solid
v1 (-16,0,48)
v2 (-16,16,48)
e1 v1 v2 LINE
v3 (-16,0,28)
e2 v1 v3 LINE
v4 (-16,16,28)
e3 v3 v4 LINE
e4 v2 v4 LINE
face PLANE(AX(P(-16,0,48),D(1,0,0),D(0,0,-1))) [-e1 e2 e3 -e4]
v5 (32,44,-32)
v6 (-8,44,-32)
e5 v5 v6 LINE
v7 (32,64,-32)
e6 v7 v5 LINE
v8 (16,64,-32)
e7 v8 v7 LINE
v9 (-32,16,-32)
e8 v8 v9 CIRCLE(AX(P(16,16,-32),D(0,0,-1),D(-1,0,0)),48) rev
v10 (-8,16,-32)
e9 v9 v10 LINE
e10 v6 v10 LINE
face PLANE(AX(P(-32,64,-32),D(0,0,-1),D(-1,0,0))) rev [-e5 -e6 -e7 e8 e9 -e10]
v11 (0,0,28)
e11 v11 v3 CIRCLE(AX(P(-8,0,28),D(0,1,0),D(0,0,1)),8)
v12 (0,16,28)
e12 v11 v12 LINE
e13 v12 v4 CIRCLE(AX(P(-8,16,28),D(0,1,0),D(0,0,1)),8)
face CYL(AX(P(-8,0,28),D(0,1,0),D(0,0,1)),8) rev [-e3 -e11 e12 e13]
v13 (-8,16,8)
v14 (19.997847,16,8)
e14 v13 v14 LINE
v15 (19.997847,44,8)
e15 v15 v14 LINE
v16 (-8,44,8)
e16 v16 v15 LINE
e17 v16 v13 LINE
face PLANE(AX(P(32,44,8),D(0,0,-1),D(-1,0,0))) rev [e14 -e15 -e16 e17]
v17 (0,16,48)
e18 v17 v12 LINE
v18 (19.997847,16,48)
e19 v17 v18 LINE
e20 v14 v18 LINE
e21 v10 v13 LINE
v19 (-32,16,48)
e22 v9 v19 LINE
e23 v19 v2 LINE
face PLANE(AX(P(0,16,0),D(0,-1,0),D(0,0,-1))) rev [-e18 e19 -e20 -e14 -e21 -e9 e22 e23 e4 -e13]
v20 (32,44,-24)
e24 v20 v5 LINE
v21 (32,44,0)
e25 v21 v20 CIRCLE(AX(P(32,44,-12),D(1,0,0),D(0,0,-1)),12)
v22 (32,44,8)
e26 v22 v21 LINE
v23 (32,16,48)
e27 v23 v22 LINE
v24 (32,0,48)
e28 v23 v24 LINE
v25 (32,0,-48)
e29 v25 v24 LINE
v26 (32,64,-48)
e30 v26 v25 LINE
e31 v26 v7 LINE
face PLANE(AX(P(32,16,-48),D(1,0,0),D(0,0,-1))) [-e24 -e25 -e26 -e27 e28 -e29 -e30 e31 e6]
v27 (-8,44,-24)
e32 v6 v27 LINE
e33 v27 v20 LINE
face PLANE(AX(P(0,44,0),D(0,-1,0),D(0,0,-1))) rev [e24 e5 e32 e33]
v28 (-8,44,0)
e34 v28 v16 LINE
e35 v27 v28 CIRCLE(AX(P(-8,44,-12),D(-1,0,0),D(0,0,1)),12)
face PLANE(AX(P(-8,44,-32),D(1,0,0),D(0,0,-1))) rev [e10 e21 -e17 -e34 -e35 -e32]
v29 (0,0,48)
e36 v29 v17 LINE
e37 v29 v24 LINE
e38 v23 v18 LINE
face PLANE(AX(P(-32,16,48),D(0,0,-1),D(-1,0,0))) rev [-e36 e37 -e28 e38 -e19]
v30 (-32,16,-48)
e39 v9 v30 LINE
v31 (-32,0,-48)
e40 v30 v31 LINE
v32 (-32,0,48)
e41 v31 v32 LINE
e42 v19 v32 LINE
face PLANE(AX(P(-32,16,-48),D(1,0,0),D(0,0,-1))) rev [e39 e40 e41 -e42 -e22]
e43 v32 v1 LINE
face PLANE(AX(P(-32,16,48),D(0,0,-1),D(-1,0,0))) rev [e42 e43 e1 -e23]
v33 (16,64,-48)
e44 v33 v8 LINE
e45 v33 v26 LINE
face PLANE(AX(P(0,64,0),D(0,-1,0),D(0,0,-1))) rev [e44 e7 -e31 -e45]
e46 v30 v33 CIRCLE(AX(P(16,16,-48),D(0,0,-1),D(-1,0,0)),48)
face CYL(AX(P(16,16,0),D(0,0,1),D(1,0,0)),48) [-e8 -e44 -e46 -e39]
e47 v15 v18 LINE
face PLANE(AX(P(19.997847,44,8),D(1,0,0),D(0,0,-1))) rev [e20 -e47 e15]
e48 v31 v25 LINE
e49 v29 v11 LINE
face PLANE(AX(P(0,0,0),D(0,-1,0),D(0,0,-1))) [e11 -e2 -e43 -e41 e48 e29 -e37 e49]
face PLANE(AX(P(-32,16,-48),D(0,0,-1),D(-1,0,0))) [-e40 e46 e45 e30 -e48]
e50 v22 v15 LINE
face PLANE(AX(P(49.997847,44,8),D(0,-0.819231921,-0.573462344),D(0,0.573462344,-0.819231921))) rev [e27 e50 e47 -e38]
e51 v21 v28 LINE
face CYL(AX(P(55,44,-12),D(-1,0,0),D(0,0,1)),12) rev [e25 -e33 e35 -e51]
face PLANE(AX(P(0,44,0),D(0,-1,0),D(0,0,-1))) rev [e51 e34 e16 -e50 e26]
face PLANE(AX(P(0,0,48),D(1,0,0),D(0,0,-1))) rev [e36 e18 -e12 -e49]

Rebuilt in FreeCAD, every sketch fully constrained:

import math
import FreeCAD as App
import Part
import Sketcher
Q = App.Units.Quantity


def edges_at(feature, points):
    """Names of the edges that pass closest to the given points."""
    edges = feature.Shape.Edges
    near = lambda p: min(range(len(edges)), key=lambda i: edges[i].distToShape(Part.Vertex(*p))[0])
    return sorted({f"Edge{near(p) + 1}" for p in points})

doc = App.newDocument("Part")
body = doc.addObject("PartDesign::Body", "Body")

# Sketch on XZ plane
sketch1 = body.newObject("Sketcher::SketchObject", "Sketch")
sketch1.AttachmentSupport = (doc.getObject("XZ_Plane"), [""])
sketch1.MapMode = "FlatFace"
sketch1.addGeometry([
    Part.LineSegment(App.Vector(-32, -48, 0), App.Vector(-32, 48, 0)),
    Part.LineSegment(App.Vector(-32, 48, 0), App.Vector(32, 48, 0)),
    Part.LineSegment(App.Vector(32, 48, 0), App.Vector(32, -48, 0)),
    Part.LineSegment(App.Vector(32, -48, 0), App.Vector(-32, -48, 0)),
], False)
sketch1.addConstraint([
    Sketcher.Constraint("Coincident", 0, 2, 1, 1),
    Sketcher.Constraint("Coincident", 1, 2, 2, 1),
    Sketcher.Constraint("Coincident", 2, 2, 3, 1),
    Sketcher.Constraint("Coincident", 3, 2, 0, 1),
    Sketcher.Constraint("Vertical", 0),
    Sketcher.Constraint("Horizontal", 1),
    Sketcher.Constraint("Vertical", 2),
    Sketcher.Constraint("Horizontal", 3),
    Sketcher.Constraint("Symmetric", 0, 2, 2, 2, -1, 1),
    Sketcher.Constraint("DistanceX", 1, 1, 1, 2, Q("64 mm")),
    Sketcher.Constraint("DistanceY", 0, 1, 0, 2, Q("96 mm")),
])
pad1 = body.newObject("PartDesign::Pad", "Pad")
pad1.Profile = sketch1
pad1.Length = 16
pad1.Reversed = True

# Sketch on XZ plane
sketch2 = body.newObject("Sketcher::SketchObject", "Sketch001")
sketch2.AttachmentSupport = (doc.getObject("XZ_Plane"), [""])
sketch2.MapMode = "FlatFace"
sketch2.AttachmentOffset = App.Placement(App.Vector(0, 0, -16), App.Rotation())
sketch2.addGeometry([
    Part.LineSegment(App.Vector(-32, -48, 0), App.Vector(-32, -32, 0)),
    Part.LineSegment(App.Vector(-32, -32, 0), App.Vector(32, -32, 0)),
    Part.LineSegment(App.Vector(32, -32, 0), App.Vector(32, -48, 0)),
    Part.LineSegment(App.Vector(32, -48, 0), App.Vector(-32, -48, 0)),
], False)
sketch2.addConstraint([
    Sketcher.Constraint("Coincident", 0, 2, 1, 1),
    Sketcher.Constraint("Coincident", 1, 2, 2, 1),
    Sketcher.Constraint("Coincident", 2, 2, 3, 1),
    Sketcher.Constraint("Coincident", 3, 2, 0, 1),
    Sketcher.Constraint("Vertical", 0),
    Sketcher.Constraint("Horizontal", 1),
    Sketcher.Constraint("Vertical", 2),
    Sketcher.Constraint("Horizontal", 3),
    Sketcher.Constraint("DistanceX", 1, 1, 1, 2, Q("64 mm")),
    Sketcher.Constraint("DistanceY", 0, 1, 0, 2, Q("16 mm")),
    Sketcher.Constraint("DistanceX", 0, 2, -1, 1, Q("32 mm")),
    Sketcher.Constraint("DistanceY", 0, 2, -1, 1, Q("32 mm")),
])
pad2 = body.newObject("PartDesign::Pad", "Pad001")
pad2.Profile = sketch2
pad2.Length = 48
pad2.Reversed = True
doc.recompute()

fillet = body.newObject("PartDesign::Fillet", "Fillet")
fillet.Base = (pad2, edges_at(pad2, [(-32, 64, -40)]))
fillet.Radius = 48

# Sketch on XZ plane
sketch3 = body.newObject("Sketcher::SketchObject", "Sketch002")
sketch3.AttachmentSupport = (doc.getObject("XZ_Plane"), [""])
sketch3.MapMode = "FlatFace"
sketch3.AttachmentOffset = App.Placement(App.Vector(0, 0, -16), App.Rotation())
sketch3.addGeometry([
    Part.LineSegment(App.Vector(-8, -32, 0), App.Vector(-8, 8, 0)),
    Part.LineSegment(App.Vector(-8, 8, 0), App.Vector(32, 8, 0)),
    Part.LineSegment(App.Vector(32, 8, 0), App.Vector(32, -32, 0)),
    Part.LineSegment(App.Vector(32, -32, 0), App.Vector(-8, -32, 0)),
], False)
sketch3.addConstraint([
    Sketcher.Constraint("Coincident", 0, 2, 1, 1),
    Sketcher.Constraint("Coincident", 1, 2, 2, 1),
    Sketcher.Constraint("Coincident", 2, 2, 3, 1),
    Sketcher.Constraint("Coincident", 3, 2, 0, 1),
    Sketcher.Constraint("Vertical", 0),
    Sketcher.Constraint("Horizontal", 1),
    Sketcher.Constraint("Vertical", 2),
    Sketcher.Constraint("Horizontal", 3),
    Sketcher.Constraint("Equal", 3, 0),
    Sketcher.Constraint("DistanceX", 1, 1, 1, 2, Q("40 mm")),
    Sketcher.Constraint("DistanceX", 0, 2, -1, 1, Q("8 mm")),
    Sketcher.Constraint("DistanceY", -1, 1, 0, 2, Q("8 mm")),
])
pad3 = body.newObject("PartDesign::Pad", "Pad002")
pad3.Profile = sketch3
pad3.Length = 28
pad3.Reversed = True

# Sketch on YZ plane
sketch4 = body.newObject("Sketcher::SketchObject", "Sketch003")
sketch4.AttachmentSupport = (doc.getObject("YZ_Plane"), [""])
sketch4.MapMode = "FlatFace"
sketch4.AttachmentOffset = App.Placement(App.Vector(0, 0, -8), App.Rotation())
sketch4.addGeometry(Part.Circle(App.Vector(44, -12, 0), App.Vector(0, 0, 1), 12), False)
sketch4.addConstraint([
    Sketcher.Constraint("Diameter", 0, Q("24 mm")),
    Sketcher.Constraint("DistanceX", -1, 1, 0, 3, Q("44 mm")),
    Sketcher.Constraint("DistanceY", 0, 3, -1, 1, Q("12 mm")),
])
pocket1 = body.newObject("PartDesign::Pocket", "Pocket")
pocket1.Profile = sketch4
pocket1.Length = 63
pocket1.Reversed = True

# Sketch on XZ plane
sketch5 = body.newObject("Sketcher::SketchObject", "Sketch004")
sketch5.AttachmentSupport = (doc.getObject("XZ_Plane"), [""])
sketch5.MapMode = "FlatFace"
sketch5.AttachmentOffset = App.Placement(App.Vector(0, 0, -16), App.Rotation())
sketch5.addGeometry([
    Part.LineSegment(App.Vector(20, 8, 0), App.Vector(20, 48, 0)),
    Part.LineSegment(App.Vector(20, 48, 0), App.Vector(32, 48, 0)),
    Part.LineSegment(App.Vector(32, 48, 0), App.Vector(32, 8, 0)),
    Part.LineSegment(App.Vector(32, 8, 0), App.Vector(20, 8, 0)),
], False)
sketch5.addConstraint([
    Sketcher.Constraint("Coincident", 0, 2, 1, 1),
    Sketcher.Constraint("Coincident", 1, 2, 2, 1),
    Sketcher.Constraint("Coincident", 2, 2, 3, 1),
    Sketcher.Constraint("Coincident", 3, 2, 0, 1),
    Sketcher.Constraint("Vertical", 0),
    Sketcher.Constraint("Horizontal", 1),
    Sketcher.Constraint("Vertical", 2),
    Sketcher.Constraint("Horizontal", 3),
    Sketcher.Constraint("DistanceY", 0, 1, 0, 2, Q("40 mm")),
    Sketcher.Constraint("DistanceY", -1, 1, 0, 2, Q("48 mm")),
    Sketcher.Constraint("DistanceX", -1, 1, 1, 2, Q("32 mm")),
    Sketcher.Constraint("DistanceX", 1, 1, 1, 2, Q("12.002153 mm")),
])
pad4 = body.newObject("PartDesign::Pad", "Pad003")
pad4.Profile = sketch5
pad4.Length = 28
pad4.Reversed = True

# Sketch on YZ plane
sketch6 = body.newObject("Sketcher::SketchObject", "Sketch005")
sketch6.AttachmentSupport = (doc.getObject("YZ_Plane"), [""])
sketch6.MapMode = "FlatFace"
sketch6.AttachmentOffset = App.Placement(App.Vector(0, 0, 19.997847), App.Rotation())
sketch6.addGeometry([
    Part.LineSegment(App.Vector(44, 8, 0), App.Vector(16, 48, 0)),
    Part.LineSegment(App.Vector(16, 48, 0), App.Vector(44, 48, 0)),
    Part.LineSegment(App.Vector(44, 48, 0), App.Vector(44, 8, 0)),
], False)
sketch6.addConstraint([
    Sketcher.Constraint("Coincident", 0, 2, 1, 1),
    Sketcher.Constraint("Coincident", 1, 2, 2, 1),
    Sketcher.Constraint("Coincident", 2, 2, 0, 1),
    Sketcher.Constraint("Horizontal", 1),
    Sketcher.Constraint("Vertical", 2),
    Sketcher.Constraint("DistanceX", 1, 1, 1, 2, Q("28 mm")),
    Sketcher.Constraint("DistanceY", 2, 2, 2, 1, Q("40 mm")),
    Sketcher.Constraint("DistanceX", -1, 1, 0, 2, Q("16 mm")),
    Sketcher.Constraint("DistanceY", -1, 1, 0, 2, Q("48 mm")),
])
pocket2 = body.newObject("PartDesign::Pocket", "Pocket001")
pocket2.Profile = sketch6
pocket2.Length = 30
pocket2.Reversed = True

# Sketch on XZ plane
sketch7 = body.newObject("Sketcher::SketchObject", "Sketch006")
sketch7.AttachmentSupport = (doc.getObject("XZ_Plane"), [""])
sketch7.MapMode = "FlatFace"
sketch7.AttachmentOffset = App.Placement(App.Vector(0, 0, -16), App.Rotation())
sketch7.addGeometry([
    Part.LineSegment(App.Vector(-16, 28, 0), App.Vector(-16, 48, 0)),
    Part.ArcOfCircle(Part.Circle(App.Vector(-8, 48, 0), App.Vector(0, 0, 1), 8), math.radians(0), math.radians(180)),
    Part.LineSegment(App.Vector(0, 48, 0), App.Vector(0, 28, 0)),
    Part.ArcOfCircle(Part.Circle(App.Vector(-8, 28, 0), App.Vector(0, 0, 1), 8), math.radians(180), math.radians(360)),
], False)
sketch7.addConstraint([
    Sketcher.Constraint("Tangent", 0, 2, 1, 2),
    Sketcher.Constraint("Tangent", 1, 1, 2, 1),
    Sketcher.Constraint("Tangent", 2, 2, 3, 2),
    Sketcher.Constraint("Tangent", 3, 1, 0, 1),
    Sketcher.Constraint("Vertical", 0),
    Sketcher.Constraint("Vertical", 2),
    Sketcher.Constraint("PointOnObject", 1, 1, -2),
    Sketcher.Constraint("Radius", 1, Q("8 mm")),
    Sketcher.Constraint("DistanceY", 0, 1, 0, 2, Q("20 mm")),
    Sketcher.Constraint("DistanceY", -1, 1, 1, 3, Q("48 mm")),
])
pocket3 = body.newObject("PartDesign::Pocket", "Pocket002")
pocket3.Profile = sketch7
pocket3.Type = "ThroughAll"
pocket3.Reversed = True

doc.recompute()
